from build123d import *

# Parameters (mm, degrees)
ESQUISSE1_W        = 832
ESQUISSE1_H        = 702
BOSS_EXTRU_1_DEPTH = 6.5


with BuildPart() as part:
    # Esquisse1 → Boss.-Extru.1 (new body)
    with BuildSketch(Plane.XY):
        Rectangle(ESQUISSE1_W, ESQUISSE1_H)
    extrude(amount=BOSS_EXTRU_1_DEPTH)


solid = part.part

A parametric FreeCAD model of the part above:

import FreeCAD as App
import Part
import Sketcher

V = App.Vector


def add_polygon(sketch, points):
    """Adds a closed chain of lines whose ends are joined by coincident constraints."""
    first, n = sketch.GeometryCount, len(points)
    for a, b in zip(points, points[1:] + points[:1]):
        sketch.addGeometry(Part.LineSegment(App.Vector(*a, 0), App.Vector(*b, 0)), False)
    for i in range(n):
        sketch.addConstraint(Sketcher.Constraint("Coincident", first + i, 2, first + (i + 1) % n, 1))

doc = App.newDocument("Part")
body = doc.addObject("PartDesign::Body", "Body")

# Sketch on XY plane
sketch1 = doc.addObject("Sketcher::SketchObject", "Sketch")
body.addObject(sketch1)
sketch1.AttachmentSupport = (doc.XY_Plane, [""])
sketch1.MapMode = "FlatFace"
add_polygon(sketch1, [(-416, 351), (-416, -351), (416, -351), (416, 351)])  # lines 0-3
sketch1.addConstraint([
    Sketcher.Constraint("Vertical", 0),
    Sketcher.Constraint("Horizontal", 1),
    Sketcher.Constraint("Vertical", 2),
    Sketcher.Constraint("Horizontal", 3),
    Sketcher.Constraint("Symmetric", 0, 2, 2, 2, -1, 1),
    Sketcher.Constraint("DistanceX", 1, 1, 1, 2, 832.0),
    Sketcher.Constraint("DistanceY", 0, 2, 0, 1, 702.0),
])
pad1 = doc.addObject("PartDesign::Pad", "Pad")
body.addObject(pad1)
pad1.Profile = sketch1
pad1.Length = 6.5

doc.recompute()
